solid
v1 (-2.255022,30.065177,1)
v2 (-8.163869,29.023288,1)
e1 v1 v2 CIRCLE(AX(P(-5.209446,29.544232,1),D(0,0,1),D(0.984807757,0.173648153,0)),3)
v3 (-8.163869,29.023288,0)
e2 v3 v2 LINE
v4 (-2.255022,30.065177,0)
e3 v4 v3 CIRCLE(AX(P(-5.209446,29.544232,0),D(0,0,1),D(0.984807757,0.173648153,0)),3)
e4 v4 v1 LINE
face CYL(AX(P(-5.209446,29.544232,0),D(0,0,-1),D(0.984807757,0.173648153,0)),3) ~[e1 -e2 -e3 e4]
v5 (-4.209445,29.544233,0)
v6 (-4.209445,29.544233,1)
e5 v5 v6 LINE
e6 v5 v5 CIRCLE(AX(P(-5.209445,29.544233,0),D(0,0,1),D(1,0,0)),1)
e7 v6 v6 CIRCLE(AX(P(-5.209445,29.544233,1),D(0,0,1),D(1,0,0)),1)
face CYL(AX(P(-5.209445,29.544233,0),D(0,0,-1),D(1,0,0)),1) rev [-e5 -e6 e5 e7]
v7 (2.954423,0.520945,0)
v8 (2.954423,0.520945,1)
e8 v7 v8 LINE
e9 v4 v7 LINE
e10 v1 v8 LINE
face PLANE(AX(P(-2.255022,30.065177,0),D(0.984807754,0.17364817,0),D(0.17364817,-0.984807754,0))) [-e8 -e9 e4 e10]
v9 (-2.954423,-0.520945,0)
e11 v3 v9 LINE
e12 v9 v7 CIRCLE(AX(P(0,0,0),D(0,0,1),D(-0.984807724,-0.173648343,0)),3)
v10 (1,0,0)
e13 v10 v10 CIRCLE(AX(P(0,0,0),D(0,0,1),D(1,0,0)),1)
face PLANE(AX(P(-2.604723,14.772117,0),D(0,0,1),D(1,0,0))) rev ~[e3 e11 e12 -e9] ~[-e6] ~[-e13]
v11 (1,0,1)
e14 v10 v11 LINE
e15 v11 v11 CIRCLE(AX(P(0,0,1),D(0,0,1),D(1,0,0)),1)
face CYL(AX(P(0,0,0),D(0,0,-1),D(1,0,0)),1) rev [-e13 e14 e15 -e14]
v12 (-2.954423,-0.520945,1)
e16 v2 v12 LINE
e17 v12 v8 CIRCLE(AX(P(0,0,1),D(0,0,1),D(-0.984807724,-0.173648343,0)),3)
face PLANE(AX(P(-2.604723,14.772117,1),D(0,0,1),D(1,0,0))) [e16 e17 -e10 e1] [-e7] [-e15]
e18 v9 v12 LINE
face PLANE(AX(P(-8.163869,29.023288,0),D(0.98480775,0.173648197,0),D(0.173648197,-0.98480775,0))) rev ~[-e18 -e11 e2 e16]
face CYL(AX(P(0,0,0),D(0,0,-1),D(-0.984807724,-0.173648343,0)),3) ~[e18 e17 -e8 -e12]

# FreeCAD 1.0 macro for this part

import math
import FreeCAD as App
import Part
import Sketcher
Q = App.Units.Quantity

doc = App.newDocument("Part")
params = doc.addObject("Spreadsheet::Sheet", "Params")
for row, (alias, value) in enumerate([
    ("sketch1_diameter", "2 mm"),
    ("sketch1_radius", "3 mm"),
    ("sketch1_length", "30.000001 mm"),
    ("pad1_length", "1 mm"),
], start=1):
    params.set(f"A{row}", alias)
    params.set(f"B{row}", "=" + value)
    params.setAlias(f"B{row}", alias)

body = doc.addObject("PartDesign::Body", "Body")

# Sketch on XY plane
sketch1 = body.newObject("Sketcher::SketchObject", "Sketch")
sketch1.AttachmentSupport = (doc.getObject("XY_Plane"), [""])
sketch1.MapMode = "FlatFace"
sketch1.addGeometry([
    Part.ArcOfCircle(Part.Circle(App.Vector(-5.2, 29.5, 0), App.Vector(0, 0, 1), 3), math.radians(10), math.radians(190)),  # 0
    Part.LineSegment(App.Vector(-8.2, 29, 0), App.Vector(-3, -0.5, 0)),  # 1
    Part.ArcOfCircle(Part.Circle(App.Vector(0, 0, 0), App.Vector(0, 0, 1), 3), math.radians(-170), math.radians(10)),  # 2
    Part.LineSegment(App.Vector(3, 0.5, 0), App.Vector(-2.3, 30.1, 0)),  # 3
    Part.Circle(App.Vector(0, 0, 0), App.Vector(0, 0, 1), 1),  # 4
    Part.Circle(App.Vector(-5.2, 29.5, 0), App.Vector(0, 0, 1), 1),  # 5
], False)
sketch1.addConstraint([
    Sketcher.Constraint("Tangent", 0, 2, 1, 1),
    Sketcher.Constraint("Tangent", 1, 2, 2, 1),
    Sketcher.Constraint("Tangent", 2, 2, 3, 1),
    Sketcher.Constraint("Tangent", 3, 2, 0, 1),
    Sketcher.Constraint("Coincident", 2, 3, -1, 1),
    Sketcher.Constraint("Coincident", 4, 3, -1, 1),
    Sketcher.Constraint("Coincident", 5, 3, 0, 3),
    Sketcher.Constraint("Equal", 0, 2),
    Sketcher.Constraint("Equal", 4, 5),
    Sketcher.Constraint("Diameter", 4, 2.0),
    Sketcher.Constraint("Radius", 0, 3.0),
    Sketcher.Constraint("Angle", 1, Q("-79.999999 deg")),
    Sketcher.Constraint("Distance", 1, 30.000001),
])
sketch1.setExpression("Constraints[9]", "Params.sketch1_diameter")
sketch1.setExpression("Constraints[10]", "Params.sketch1_radius")
sketch1.setExpression("Constraints[12]", "Params.sketch1_length")
pad1 = body.newObject("PartDesign::Pad", "Pad")
pad1.Profile = sketch1
pad1.setExpression("Length", "Params.pad1_length")

doc.recompute()
